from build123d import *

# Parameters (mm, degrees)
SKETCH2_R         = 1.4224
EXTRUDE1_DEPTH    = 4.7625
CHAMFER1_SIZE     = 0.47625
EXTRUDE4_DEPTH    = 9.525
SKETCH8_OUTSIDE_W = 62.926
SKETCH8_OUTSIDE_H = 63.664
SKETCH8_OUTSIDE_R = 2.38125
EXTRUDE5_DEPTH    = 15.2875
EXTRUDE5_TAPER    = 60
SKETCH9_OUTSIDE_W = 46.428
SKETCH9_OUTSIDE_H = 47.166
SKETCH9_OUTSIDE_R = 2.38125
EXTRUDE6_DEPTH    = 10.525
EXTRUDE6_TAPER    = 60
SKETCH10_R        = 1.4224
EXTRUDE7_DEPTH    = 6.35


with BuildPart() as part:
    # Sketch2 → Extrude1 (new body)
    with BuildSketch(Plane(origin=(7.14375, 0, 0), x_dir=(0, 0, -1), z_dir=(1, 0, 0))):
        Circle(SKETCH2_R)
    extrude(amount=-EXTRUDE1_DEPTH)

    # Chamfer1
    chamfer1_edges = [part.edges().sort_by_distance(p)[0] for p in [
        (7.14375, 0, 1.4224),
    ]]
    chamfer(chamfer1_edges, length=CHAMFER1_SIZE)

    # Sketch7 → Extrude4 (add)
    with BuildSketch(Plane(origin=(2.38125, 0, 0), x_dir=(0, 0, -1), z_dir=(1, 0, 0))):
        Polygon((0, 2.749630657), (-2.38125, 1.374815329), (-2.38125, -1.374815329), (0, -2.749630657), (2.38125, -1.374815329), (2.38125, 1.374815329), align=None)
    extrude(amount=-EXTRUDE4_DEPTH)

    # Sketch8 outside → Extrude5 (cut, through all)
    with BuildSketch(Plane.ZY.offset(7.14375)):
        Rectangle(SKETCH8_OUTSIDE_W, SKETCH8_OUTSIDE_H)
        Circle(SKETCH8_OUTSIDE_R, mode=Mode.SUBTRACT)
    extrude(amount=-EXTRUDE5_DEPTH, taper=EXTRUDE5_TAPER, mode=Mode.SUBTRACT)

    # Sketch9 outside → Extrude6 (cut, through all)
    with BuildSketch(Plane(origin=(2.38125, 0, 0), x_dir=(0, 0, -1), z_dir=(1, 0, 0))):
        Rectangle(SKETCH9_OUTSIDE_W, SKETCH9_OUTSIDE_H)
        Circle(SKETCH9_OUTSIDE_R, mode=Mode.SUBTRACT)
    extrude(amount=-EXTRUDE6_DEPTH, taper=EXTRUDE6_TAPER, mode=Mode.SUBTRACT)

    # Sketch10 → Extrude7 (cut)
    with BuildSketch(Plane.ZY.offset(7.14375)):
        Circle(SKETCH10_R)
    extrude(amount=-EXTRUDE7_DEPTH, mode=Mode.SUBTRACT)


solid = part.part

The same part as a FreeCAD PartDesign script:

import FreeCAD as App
import Part
import Sketcher

V = App.Vector
Q = App.Units.Quantity


def edges_at(feature, points):
    """Names of the edges that pass closest to the given points."""
    edges = feature.Shape.Edges
    near = lambda p: min(range(len(edges)), key=lambda i: edges[i].distToShape(Part.Vertex(*p))[0])
    return sorted({f"Edge{near(p) + 1}" for p in points})


def add_polygon(sketch, points):
    """Adds a closed chain of lines whose ends are joined by coincident constraints."""
    first, n = sketch.GeometryCount, len(points)
    for a, b in zip(points, points[1:] + points[:1]):
        sketch.addGeometry(Part.LineSegment(App.Vector(*a, 0), App.Vector(*b, 0)), False)
    for i in range(n):
        sketch.addConstraint(Sketcher.Constraint("Coincident", first + i, 2, first + (i + 1) % n, 1))

doc = App.newDocument("Part")
body = doc.addObject("PartDesign::Body", "Body")

# Sketch on YZ plane
sketch1 = doc.addObject("Sketcher::SketchObject", "Sketch")
body.addObject(sketch1)
sketch1.AttachmentSupport = (doc.YZ_Plane, [""])
sketch1.MapMode = "FlatFace"
sketch1.AttachmentOffset = App.Placement(V(0, 0, 0.28125 * 25.4), App.Rotation())
sketch1.addGeometry(Part.Circle(V(0, 0, 0), V(0, 0, 1), 1.4), False)
sketch1.addConstraint(Sketcher.Constraint("Coincident", 0, 3, -1, 1))
sketch1.addConstraint(Sketcher.Constraint("Diameter", 0, Q("0.112 in")))
pad1 = doc.addObject("PartDesign::Pad", "Pad")
body.addObject(pad1)
pad1.Profile = sketch1
pad1.Length = Q("0.1875 in")
pad1.Reversed = True
doc.recompute()

chamfer = doc.addObject("PartDesign::Chamfer", "Chamfer")
body.addObject(chamfer)
chamfer.Base = (pad1, edges_at(pad1, [(7.144, 0, 1.422)]))
chamfer.Size = 0.47625

# Sketch on YZ plane
sketch2 = doc.addObject("Sketcher::SketchObject", "Sketch001")
body.addObject(sketch2)
sketch2.AttachmentSupport = (doc.YZ_Plane, [""])
sketch2.MapMode = "FlatFace"
sketch2.AttachmentOffset = App.Placement(V(0, 0, 0.09375 * 25.4), App.Rotation())
add_polygon(sketch2, [(2.7, 0), (1.4, 2.4), (-1.4, 2.4), (-2.7, 0), (-1.4, -2.4), (1.4, -2.4)])  # lines 0-5
sketch2.addConstraint(Sketcher.Constraint("Horizontal", 1))
sketch2.addConstraint(Sketcher.Constraint("Horizontal", 4))
sketch2.addConstraint(Sketcher.Constraint("Symmetric", 0, 2, 3, 2, -1, 1))
sketch2.addConstraint(Sketcher.Constraint("Symmetric", 2, 2, 5, 2, -1, 1))
sketch2.addConstraint(Sketcher.Constraint("PointOnObject", 2, 2, -1))
sketch2.addConstraint(Sketcher.Constraint("Parallel", 2, 5))
sketch2.addConstraint(Sketcher.Constraint("Vertical", 1, 2, 3, 2))
sketch2.addConstraint(Sketcher.Constraint("Angle", 0, Q("120 deg")))
sketch2.addConstraint(Sketcher.Constraint("DistanceY", -1, 1, 0, 2, Q("0.09375 in")))
sketch2.addConstraint(Sketcher.Constraint("DistanceX", 1, 2, 1, 1, 2.749631))
pad2 = doc.addObject("PartDesign::Pad", "Pad001")
body.addObject(pad2)
pad2.Profile = sketch2
pad2.Length = Q("0.375 in")
pad2.Reversed = True

# Sketch on YZ plane
sketch3 = doc.addObject("Sketcher::SketchObject", "Sketch002")
body.addObject(sketch3)
sketch3.AttachmentSupport = (doc.YZ_Plane, [""])
sketch3.MapMode = "FlatFace"
sketch3.AttachmentOffset = App.Placement(V(0, 0, -0.28125 * 25.4), App.Rotation())
add_polygon(sketch3, [(31.8, -31.5), (-31.8, -31.5), (-31.8, 31.5), (31.8, 31.5)])  # lines 0-3
sketch3.addGeometry(Part.Circle(V(0, 0, 0), V(0, 0, 1), 2.4), False)  # 4
sketch3.addConstraint(Sketcher.Constraint("Horizontal", 0))
sketch3.addConstraint(Sketcher.Constraint("Vertical", 1))
sketch3.addConstraint(Sketcher.Constraint("Horizontal", 2))
sketch3.addConstraint(Sketcher.Constraint("Vertical", 3))
sketch3.addConstraint(Sketcher.Constraint("Coincident", 4, 3, -1, 1))
sketch3.addConstraint(Sketcher.Constraint("Symmetric", 0, 2, 2, 2, -1, 1))
sketch3.addConstraint(Sketcher.Constraint("Diameter", 4, Q("0.1875 in")))
sketch3.addConstraint(Sketcher.Constraint("DistanceX", 0, 2, 0, 1, 63.664))
sketch3.addConstraint(Sketcher.Constraint("DistanceY", 1, 1, 1, 2, 62.926))
pocket1 = doc.addObject("PartDesign::Pocket", "Pocket")
body.addObject(pocket1)
pocket1.Profile = sketch3
pocket1.Length = 15.2875
pocket1.Reversed = True
pocket1.TaperAngle = 60

# Sketch on YZ plane
sketch4 = doc.addObject("Sketcher::SketchObject", "Sketch003")
body.addObject(sketch4)
sketch4.AttachmentSupport = (doc.YZ_Plane, [""])
sketch4.MapMode = "FlatFace"
sketch4.AttachmentOffset = App.Placement(V(0, 0, 0.09375 * 25.4), App.Rotation())
add_polygon(sketch4, [(23.6, 23.2), (-23.6, 23.2), (-23.6, -23.2), (23.6, -23.2)])  # lines 0-3
sketch4.addGeometry(Part.Circle(V(0, 0, 0), V(0, 0, 1), 2.4), False)  # 4
sketch4.addConstraint(Sketcher.Constraint("Horizontal", 0))
sketch4.addConstraint(Sketcher.Constraint("Vertical", 1))
sketch4.addConstraint(Sketcher.Constraint("Horizontal", 2))
sketch4.addConstraint(Sketcher.Constraint("Vertical", 3))
sketch4.addConstraint(Sketcher.Constraint("Coincident", 4, 3, -1, 1))
sketch4.addConstraint(Sketcher.Constraint("Symmetric", 0, 2, 2, 2, -1, 1))
sketch4.addConstraint(Sketcher.Constraint("Diameter", 4, Q("0.1875 in")))
sketch4.addConstraint(Sketcher.Constraint("DistanceX", 0, 2, 0, 1, 47.166))
sketch4.addConstraint(Sketcher.Constraint("DistanceY", 1, 2, 1, 1, 46.428))
pocket2 = doc.addObject("PartDesign::Pocket", "Pocket001")
body.addObject(pocket2)
pocket2.Profile = sketch4
pocket2.Length = 10.525
pocket2.TaperAngle = 60

# Sketch on YZ plane
sketch5 = doc.addObject("Sketcher::SketchObject", "Sketch004")
body.addObject(sketch5)
sketch5.AttachmentSupport = (doc.YZ_Plane, [""])
sketch5.MapMode = "FlatFace"
sketch5.AttachmentOffset = App.Placement(V(0, 0, -0.28125 * 25.4), App.Rotation())
sketch5.addGeometry(Part.Circle(V(0, 0, 0), V(0, 0, 1), 1.4), False)
sketch5.addConstraint(Sketcher.Constraint("Coincident", 0, 3, -1, 1))
sketch5.addConstraint(Sketcher.Constraint("Diameter", 0, Q("0.112 in")))
pocket3 = doc.addObject("PartDesign::Pocket", "Pocket002")
body.addObject(pocket3)
pocket3.Profile = sketch5
pocket3.Length = Q("0.25 in")
pocket3.Reversed = True

doc.recompute()
